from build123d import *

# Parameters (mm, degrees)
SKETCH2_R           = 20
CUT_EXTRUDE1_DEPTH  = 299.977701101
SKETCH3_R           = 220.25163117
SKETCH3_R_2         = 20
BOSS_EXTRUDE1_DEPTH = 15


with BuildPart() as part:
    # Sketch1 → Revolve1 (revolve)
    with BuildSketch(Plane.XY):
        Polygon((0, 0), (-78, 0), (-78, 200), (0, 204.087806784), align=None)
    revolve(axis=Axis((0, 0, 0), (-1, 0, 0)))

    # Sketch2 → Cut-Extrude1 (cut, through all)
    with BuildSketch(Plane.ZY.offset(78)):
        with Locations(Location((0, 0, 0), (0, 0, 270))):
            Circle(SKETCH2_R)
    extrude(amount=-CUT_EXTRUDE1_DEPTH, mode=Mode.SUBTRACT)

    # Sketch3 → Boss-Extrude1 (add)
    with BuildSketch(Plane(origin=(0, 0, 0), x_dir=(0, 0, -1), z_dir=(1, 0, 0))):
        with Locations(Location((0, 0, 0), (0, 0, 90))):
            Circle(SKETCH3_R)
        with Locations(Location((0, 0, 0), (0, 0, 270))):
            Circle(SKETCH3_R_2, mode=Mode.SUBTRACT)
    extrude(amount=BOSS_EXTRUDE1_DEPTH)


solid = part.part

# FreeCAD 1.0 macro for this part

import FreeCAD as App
import Part
import Sketcher

V = App.Vector
Q = App.Units.Quantity

doc = App.newDocument("Part")
body = doc.addObject("PartDesign::Body", "Body")

sketch1 = doc.addObject("Sketcher::SketchObject", "Sketch")
body.addObject(sketch1)
sketch1.AttachmentSupport = (doc.XY_Plane, [""])
sketch1.MapMode = "FlatFace"
sketch1.addGeometry([
    Part.LineSegment(V(-78, 0, 0), V(0, 0, 0)),
    Part.LineSegment(V(0, 0, 0), V(0, 204, 0)),
    Part.LineSegment(V(0, 204, 0), V(-78, 200, 0)),
    Part.LineSegment(V(-78, 200, 0), V(-78, 0, 0)),
], False)
sketch1.addConstraint([
    Sketcher.Constraint("Coincident", 0, 2, 1, 1),
    Sketcher.Constraint("Coincident", 1, 2, 2, 1),
    Sketcher.Constraint("Coincident", 2, 2, 3, 1),
    Sketcher.Constraint("Coincident", 3, 2, 0, 1),
    Sketcher.Constraint("Horizontal", 0),
    Sketcher.Constraint("Vertical", 1),
    Sketcher.Constraint("Vertical", 3),
    Sketcher.Constraint("Coincident", 0, 2, -1, 1),
    Sketcher.Constraint("DistanceX", 0, 1, 0, 2, 78.0),
    Sketcher.Constraint("DistanceY", 3, 2, 3, 1, 200.0),
    Sketcher.Constraint("Angle", 2, Q("-177 deg")),
])
revolution = doc.addObject("PartDesign::Revolution", "Revolution")
body.addObject(revolution)
revolution.Profile = sketch1
revolution.ReferenceAxis = (sketch1, ["H_Axis"])
revolution.Angle = 360

sketch2 = doc.addObject("Sketcher::SketchObject", "Sketch001")
body.addObject(sketch2)
sketch2.AttachmentSupport = (doc.YZ_Plane, [""])
sketch2.MapMode = "FlatFace"
sketch2.AttachmentOffset = App.Placement(V(0, 0, -78), App.Rotation())
sketch2.addGeometry(Part.Circle(V(0, 0, 0), V(0, 0, 1), 20), False)
sketch2.addConstraint([
    Sketcher.Constraint("Coincident", 0, 3, -1, 1),
    Sketcher.Constraint("Diameter", 0, 40.0),
])
pocket1 = doc.addObject("PartDesign::Pocket", "Pocket")
body.addObject(pocket1)
pocket1.Profile = sketch2
pocket1.Type = "ThroughAll"
pocket1.Reversed = True

sketch3 = doc.addObject("Sketcher::SketchObject", "Sketch002")
body.addObject(sketch3)
sketch3.AttachmentSupport = (doc.YZ_Plane, [""])
sketch3.MapMode = "FlatFace"
sketch3.addGeometry([
    Part.Circle(V(0, 0, 0), V(0, 0, 1), 220),
    Part.Circle(V(0, 0, 0), V(0, 0, 1), 20),
], False)
sketch3.addConstraint([
    Sketcher.Constraint("Coincident", 0, 3, -1, 1),
    Sketcher.Constraint("Coincident", 1, 3, -1, 1),
    Sketcher.Constraint("Diameter", 1, 40.0),
    Sketcher.Constraint("Diameter", 0, 440.503262),
])
pad1 = doc.addObject("PartDesign::Pad", "Pad")
body.addObject(pad1)
pad1.Profile = sketch3
pad1.Length = 15

doc.recompute()
